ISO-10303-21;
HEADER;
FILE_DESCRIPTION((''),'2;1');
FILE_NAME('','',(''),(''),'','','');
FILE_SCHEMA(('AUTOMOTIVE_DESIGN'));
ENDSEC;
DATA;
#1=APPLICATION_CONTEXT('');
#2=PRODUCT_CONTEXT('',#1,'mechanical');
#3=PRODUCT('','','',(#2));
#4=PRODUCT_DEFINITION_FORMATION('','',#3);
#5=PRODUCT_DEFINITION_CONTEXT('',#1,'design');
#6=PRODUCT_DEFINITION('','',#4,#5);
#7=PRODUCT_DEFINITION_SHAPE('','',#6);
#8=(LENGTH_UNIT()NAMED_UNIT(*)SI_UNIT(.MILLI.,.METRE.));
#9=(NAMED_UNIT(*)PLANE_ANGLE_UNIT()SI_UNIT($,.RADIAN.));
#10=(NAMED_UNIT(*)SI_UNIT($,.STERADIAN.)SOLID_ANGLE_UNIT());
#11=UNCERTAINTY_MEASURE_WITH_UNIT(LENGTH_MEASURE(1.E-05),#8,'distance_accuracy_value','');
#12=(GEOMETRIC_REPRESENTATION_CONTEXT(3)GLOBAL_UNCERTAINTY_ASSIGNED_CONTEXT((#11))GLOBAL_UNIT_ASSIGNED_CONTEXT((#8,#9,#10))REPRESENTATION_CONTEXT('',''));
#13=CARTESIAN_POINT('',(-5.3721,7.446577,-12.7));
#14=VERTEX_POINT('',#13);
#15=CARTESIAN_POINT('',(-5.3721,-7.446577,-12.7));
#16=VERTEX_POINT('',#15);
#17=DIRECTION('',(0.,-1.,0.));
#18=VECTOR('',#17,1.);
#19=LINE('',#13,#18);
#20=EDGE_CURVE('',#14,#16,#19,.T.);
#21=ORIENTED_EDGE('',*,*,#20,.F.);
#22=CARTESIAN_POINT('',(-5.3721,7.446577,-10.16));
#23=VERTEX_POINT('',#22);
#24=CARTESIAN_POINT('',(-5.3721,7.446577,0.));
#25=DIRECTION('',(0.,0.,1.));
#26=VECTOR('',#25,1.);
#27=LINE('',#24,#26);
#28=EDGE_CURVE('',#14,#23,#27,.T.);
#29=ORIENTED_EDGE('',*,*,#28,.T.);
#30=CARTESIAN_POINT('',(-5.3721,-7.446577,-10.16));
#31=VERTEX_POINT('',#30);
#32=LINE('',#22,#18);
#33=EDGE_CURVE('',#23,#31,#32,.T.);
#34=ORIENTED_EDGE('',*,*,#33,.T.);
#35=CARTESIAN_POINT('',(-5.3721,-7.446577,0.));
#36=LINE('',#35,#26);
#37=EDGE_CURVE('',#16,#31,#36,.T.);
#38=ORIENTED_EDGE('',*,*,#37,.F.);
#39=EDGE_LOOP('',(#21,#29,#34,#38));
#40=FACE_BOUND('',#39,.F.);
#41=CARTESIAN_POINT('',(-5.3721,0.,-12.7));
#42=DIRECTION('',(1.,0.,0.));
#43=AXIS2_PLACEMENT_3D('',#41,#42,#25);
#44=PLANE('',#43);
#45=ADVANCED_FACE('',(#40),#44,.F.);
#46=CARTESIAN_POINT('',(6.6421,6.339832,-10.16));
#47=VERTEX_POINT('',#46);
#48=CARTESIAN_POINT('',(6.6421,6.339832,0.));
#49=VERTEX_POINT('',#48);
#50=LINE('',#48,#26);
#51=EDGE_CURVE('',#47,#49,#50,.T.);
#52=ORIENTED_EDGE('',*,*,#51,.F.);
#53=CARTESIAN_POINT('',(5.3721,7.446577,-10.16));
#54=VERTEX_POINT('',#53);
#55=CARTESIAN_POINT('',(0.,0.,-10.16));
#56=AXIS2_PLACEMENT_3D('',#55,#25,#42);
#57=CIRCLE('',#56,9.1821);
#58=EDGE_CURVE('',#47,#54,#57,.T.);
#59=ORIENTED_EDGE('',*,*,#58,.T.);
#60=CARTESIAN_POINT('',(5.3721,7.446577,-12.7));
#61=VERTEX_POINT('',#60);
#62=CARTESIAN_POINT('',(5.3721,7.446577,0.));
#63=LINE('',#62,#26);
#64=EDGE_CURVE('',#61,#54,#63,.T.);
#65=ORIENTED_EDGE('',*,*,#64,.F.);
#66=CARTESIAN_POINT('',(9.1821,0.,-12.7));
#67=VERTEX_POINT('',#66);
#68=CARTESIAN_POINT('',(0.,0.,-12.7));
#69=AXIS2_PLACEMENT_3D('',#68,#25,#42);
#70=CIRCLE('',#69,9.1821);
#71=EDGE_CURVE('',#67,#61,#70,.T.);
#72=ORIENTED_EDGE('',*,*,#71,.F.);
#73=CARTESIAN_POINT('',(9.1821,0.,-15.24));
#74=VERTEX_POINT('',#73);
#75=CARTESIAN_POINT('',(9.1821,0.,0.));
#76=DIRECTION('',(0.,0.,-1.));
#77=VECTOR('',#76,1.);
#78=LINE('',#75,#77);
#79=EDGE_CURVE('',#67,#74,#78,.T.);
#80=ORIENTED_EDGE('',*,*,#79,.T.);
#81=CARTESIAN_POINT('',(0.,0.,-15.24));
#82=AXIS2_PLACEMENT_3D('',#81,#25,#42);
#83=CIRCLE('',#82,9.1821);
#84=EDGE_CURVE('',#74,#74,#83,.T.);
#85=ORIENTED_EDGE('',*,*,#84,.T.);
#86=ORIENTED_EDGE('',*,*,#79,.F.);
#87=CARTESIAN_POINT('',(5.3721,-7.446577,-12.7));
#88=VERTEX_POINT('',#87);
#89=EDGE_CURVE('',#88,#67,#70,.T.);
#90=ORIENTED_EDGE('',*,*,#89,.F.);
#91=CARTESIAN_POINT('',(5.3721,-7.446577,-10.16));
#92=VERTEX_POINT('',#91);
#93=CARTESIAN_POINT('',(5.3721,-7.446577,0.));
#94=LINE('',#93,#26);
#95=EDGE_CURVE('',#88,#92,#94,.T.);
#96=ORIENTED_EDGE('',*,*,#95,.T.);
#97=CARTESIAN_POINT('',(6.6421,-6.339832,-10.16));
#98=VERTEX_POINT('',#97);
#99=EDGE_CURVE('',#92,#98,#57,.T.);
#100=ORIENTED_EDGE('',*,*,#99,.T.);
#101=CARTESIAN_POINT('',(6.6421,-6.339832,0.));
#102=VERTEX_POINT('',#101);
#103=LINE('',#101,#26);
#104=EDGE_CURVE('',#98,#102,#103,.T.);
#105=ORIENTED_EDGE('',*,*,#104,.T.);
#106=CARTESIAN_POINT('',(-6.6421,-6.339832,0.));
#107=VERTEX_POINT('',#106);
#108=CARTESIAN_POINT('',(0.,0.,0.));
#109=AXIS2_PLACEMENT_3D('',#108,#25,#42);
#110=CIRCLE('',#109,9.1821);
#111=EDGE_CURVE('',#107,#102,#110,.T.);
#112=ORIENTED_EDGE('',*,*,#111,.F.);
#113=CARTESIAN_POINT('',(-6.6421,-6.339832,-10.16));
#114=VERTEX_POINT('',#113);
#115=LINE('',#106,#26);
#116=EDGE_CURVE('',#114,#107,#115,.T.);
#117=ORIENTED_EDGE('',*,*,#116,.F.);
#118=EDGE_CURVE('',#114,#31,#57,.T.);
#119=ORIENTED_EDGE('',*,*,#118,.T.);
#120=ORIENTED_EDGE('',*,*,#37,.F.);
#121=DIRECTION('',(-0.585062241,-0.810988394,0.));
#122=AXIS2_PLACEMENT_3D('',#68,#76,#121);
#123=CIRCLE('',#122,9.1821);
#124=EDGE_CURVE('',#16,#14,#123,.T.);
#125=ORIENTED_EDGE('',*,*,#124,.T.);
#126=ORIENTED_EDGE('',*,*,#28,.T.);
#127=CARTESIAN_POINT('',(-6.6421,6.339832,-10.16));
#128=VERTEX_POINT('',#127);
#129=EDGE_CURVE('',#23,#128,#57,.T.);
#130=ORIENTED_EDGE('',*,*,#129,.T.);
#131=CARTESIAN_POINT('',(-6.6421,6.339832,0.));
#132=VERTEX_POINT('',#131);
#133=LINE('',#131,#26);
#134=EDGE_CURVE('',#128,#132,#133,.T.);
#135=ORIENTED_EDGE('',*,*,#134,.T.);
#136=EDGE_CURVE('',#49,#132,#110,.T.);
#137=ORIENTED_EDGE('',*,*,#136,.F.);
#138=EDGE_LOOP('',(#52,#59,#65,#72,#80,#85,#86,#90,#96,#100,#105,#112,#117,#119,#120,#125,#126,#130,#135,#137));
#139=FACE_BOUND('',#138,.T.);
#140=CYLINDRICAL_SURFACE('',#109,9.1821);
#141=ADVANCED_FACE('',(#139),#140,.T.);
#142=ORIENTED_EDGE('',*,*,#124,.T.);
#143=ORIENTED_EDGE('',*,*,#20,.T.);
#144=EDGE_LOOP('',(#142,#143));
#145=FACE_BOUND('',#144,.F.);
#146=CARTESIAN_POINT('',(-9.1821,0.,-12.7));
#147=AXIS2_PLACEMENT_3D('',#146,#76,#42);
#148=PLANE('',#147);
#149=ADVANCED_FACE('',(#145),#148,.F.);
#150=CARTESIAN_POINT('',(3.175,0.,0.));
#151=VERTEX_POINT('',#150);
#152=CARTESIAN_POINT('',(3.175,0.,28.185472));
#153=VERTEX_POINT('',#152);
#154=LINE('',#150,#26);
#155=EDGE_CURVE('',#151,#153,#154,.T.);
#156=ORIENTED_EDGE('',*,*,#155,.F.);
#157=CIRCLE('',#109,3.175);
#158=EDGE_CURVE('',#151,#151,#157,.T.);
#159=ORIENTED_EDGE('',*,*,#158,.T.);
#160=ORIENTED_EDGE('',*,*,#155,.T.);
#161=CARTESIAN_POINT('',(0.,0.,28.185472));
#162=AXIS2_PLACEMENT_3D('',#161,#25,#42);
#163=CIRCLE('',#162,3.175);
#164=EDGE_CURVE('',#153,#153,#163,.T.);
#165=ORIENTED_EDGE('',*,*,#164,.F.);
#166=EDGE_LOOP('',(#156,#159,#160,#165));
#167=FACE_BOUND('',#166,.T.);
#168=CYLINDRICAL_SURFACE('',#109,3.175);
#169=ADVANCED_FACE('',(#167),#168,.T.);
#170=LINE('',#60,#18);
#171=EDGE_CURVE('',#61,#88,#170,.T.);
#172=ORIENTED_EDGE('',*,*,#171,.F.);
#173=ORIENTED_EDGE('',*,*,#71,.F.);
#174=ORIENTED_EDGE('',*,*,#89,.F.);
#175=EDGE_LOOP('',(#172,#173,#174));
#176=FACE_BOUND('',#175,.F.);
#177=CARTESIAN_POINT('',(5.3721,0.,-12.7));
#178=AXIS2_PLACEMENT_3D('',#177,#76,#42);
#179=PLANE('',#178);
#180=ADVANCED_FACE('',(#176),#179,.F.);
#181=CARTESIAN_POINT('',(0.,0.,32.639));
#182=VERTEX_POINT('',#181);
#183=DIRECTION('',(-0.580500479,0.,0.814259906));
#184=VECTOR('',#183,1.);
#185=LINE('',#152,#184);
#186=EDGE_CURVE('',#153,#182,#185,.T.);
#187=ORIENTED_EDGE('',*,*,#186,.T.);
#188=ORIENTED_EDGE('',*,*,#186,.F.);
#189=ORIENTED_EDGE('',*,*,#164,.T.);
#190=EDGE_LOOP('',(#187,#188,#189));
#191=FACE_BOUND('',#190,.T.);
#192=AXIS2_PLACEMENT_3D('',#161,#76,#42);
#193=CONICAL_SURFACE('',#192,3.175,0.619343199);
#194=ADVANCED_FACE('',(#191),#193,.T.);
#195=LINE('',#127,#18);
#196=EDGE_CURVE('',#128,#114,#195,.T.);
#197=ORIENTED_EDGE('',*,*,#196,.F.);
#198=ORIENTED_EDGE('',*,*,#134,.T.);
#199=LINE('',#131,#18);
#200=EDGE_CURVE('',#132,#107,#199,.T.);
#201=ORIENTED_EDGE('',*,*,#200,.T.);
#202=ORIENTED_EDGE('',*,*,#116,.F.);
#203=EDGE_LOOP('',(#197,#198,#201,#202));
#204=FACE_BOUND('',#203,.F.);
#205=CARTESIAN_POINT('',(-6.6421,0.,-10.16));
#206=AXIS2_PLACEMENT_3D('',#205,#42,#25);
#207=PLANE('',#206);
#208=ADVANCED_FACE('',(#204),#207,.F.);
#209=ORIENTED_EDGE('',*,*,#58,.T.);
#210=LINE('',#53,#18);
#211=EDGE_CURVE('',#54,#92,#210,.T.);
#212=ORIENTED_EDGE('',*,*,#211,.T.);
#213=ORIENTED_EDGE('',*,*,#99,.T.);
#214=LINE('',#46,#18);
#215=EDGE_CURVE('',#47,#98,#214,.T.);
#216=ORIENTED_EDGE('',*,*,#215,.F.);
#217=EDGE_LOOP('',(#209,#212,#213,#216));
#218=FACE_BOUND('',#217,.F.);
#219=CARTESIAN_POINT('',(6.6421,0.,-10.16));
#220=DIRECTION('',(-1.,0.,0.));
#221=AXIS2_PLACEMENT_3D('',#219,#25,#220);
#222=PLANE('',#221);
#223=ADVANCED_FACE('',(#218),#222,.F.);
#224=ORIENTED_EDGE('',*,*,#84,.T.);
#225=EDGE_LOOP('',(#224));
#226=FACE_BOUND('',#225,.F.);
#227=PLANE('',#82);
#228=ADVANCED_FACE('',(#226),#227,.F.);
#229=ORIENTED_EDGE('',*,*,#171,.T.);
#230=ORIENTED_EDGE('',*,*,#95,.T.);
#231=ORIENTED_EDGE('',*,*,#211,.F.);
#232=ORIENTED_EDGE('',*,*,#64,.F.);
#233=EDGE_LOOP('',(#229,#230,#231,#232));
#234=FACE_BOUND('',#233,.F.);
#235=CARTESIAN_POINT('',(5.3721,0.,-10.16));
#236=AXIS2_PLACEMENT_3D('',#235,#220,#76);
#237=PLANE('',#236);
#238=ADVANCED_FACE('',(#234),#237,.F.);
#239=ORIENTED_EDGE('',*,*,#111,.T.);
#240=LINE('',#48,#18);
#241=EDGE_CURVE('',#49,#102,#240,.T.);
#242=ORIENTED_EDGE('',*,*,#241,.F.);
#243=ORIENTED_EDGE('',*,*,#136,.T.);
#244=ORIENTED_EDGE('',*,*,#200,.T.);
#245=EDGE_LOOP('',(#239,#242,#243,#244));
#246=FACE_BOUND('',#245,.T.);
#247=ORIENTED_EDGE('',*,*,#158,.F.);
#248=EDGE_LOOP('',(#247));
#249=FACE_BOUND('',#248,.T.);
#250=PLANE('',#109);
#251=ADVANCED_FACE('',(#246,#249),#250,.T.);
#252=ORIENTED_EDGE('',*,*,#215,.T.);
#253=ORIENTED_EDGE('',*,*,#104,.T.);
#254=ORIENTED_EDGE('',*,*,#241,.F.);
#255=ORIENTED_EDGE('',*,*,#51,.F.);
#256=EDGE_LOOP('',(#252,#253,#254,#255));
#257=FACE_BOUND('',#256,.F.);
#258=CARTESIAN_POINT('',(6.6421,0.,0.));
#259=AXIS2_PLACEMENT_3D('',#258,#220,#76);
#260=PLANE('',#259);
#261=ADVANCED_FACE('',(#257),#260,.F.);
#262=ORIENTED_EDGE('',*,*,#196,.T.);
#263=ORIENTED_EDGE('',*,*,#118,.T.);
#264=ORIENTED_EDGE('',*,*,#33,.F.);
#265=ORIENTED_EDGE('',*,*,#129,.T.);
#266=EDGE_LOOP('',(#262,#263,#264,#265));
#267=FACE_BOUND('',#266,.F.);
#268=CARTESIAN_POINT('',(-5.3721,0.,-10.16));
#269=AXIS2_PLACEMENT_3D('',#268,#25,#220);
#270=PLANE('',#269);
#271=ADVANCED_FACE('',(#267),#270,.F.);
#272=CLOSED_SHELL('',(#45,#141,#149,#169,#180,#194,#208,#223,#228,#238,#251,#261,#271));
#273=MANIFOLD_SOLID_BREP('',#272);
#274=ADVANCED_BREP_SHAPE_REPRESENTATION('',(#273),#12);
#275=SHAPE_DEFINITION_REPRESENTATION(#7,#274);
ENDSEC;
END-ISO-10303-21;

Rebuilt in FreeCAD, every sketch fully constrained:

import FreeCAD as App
import Part
import Sketcher

V = App.Vector
Q = App.Units.Quantity


def add_polygon(sketch, points):
    """Adds a closed chain of lines whose ends are joined by coincident constraints."""
    first, n = sketch.GeometryCount, len(points)
    for a, b in zip(points, points[1:] + points[:1]):
        sketch.addGeometry(Part.LineSegment(App.Vector(*a, 0), App.Vector(*b, 0)), False)
    for i in range(n):
        sketch.addConstraint(Sketcher.Constraint("Coincident", first + i, 2, first + (i + 1) % n, 1))

doc = App.newDocument("Part")
body = doc.addObject("PartDesign::Body", "Body")

# Sketch on XY plane
sketch1 = body.newObject("Sketcher::SketchObject", "Sketch")
sketch1.AttachmentSupport = (doc.getObject("XY_Plane"), [""])
sketch1.MapMode = "FlatFace"
sketch1.addGeometry(Part.Circle(V(0, 0, 0), V(0, 0, 1), 9), False)
sketch1.addConstraint(Sketcher.Constraint("Coincident", 0, 3, -1, 1))
sketch1.addConstraint(Sketcher.Constraint("Diameter", 0, Q("0.723 in")))
pad1 = body.newObject("PartDesign::Pad", "Pad")
pad1.Profile = sketch1
pad1.Length = Q("0.6 in")
pad1.Reversed = True

# Sketch on XZ plane
sketch2 = body.newObject("Sketcher::SketchObject", "Sketch001")
sketch2.AttachmentSupport = (doc.getObject("XZ_Plane"), [""])
sketch2.MapMode = "FlatFace"
add_polygon(sketch2, [(-9.2, 0), (-9.2, -12.7), (-5.4, -12.7), (-5.4, -10.2), (-6.6, -10.2), (-6.6, 0)])  # lines 0-5
add_polygon(sketch2, [(9.2, -12.7), (9.2, 0), (6.6, 0), (6.6, -10.2), (5.4, -10.2), (5.4, -12.7)])  # lines 6-11
sketch2.addConstraint(Sketcher.Constraint("Vertical", 0))
sketch2.addConstraint(Sketcher.Constraint("Horizontal", 1))
sketch2.addConstraint(Sketcher.Constraint("Vertical", 2))
sketch2.addConstraint(Sketcher.Constraint("Horizontal", 3))
sketch2.addConstraint(Sketcher.Constraint("Vertical", 4))
sketch2.addConstraint(Sketcher.Constraint("Horizontal", 5))
sketch2.addConstraint(Sketcher.Constraint("Vertical", 6))
sketch2.addConstraint(Sketcher.Constraint("Horizontal", 7))
sketch2.addConstraint(Sketcher.Constraint("Vertical", 8))
sketch2.addConstraint(Sketcher.Constraint("Horizontal", 9))
sketch2.addConstraint(Sketcher.Constraint("Vertical", 10))
sketch2.addConstraint(Sketcher.Constraint("Horizontal", 11))
sketch2.addConstraint(Sketcher.Constraint("Symmetric", 5, 2, 6, 2, -1, 1))
sketch2.addConstraint(Sketcher.Constraint("Symmetric", 4, 2, 7, 2, -2))
sketch2.addConstraint(Sketcher.Constraint("Symmetric", 2, 2, 9, 2, -2))
sketch2.addConstraint(Sketcher.Constraint("Horizontal", 1, 2, 10, 2))
sketch2.addConstraint(Sketcher.Constraint("Equal", 7, 2))
sketch2.addConstraint(Sketcher.Constraint("DistanceX", 5, 2, 5, 1, Q("0.1 in")))
sketch2.addConstraint(Sketcher.Constraint("DistanceY", 0, 2, 0, 1, Q("0.5 in")))
sketch2.addConstraint(Sketcher.Constraint("DistanceX", 1, 1, 1, 2, Q("0.15 in")))
sketch2.addConstraint(Sketcher.Constraint("DistanceX", 4, 2, 6, 2, Q("0.623 in")))
pocket1 = body.newObject("PartDesign::Pocket", "Pocket")
pocket1.Profile = sketch2
pocket1.Type = "ThroughAll"
pocket1.Midplane = True

# Sketch on XZ plane
sketch3 = body.newObject("Sketcher::SketchObject", "Sketch002")
sketch3.AttachmentSupport = (doc.getObject("XZ_Plane"), [""])
sketch3.MapMode = "FlatFace"
add_polygon(sketch3, [(0, 32.6), (0, 0), (3.2, 0), (3.2, 28.2)])  # lines 0-3
sketch3.addConstraint(Sketcher.Constraint("Vertical", 0))
sketch3.addConstraint(Sketcher.Constraint("Horizontal", 1))
sketch3.addConstraint(Sketcher.Constraint("Vertical", 2))
sketch3.addConstraint(Sketcher.Constraint("Coincident", 0, 2, -1, 1))
sketch3.addConstraint(Sketcher.Constraint("DistanceX", 1, 1, 1, 2, Q("0.125 in")))
sketch3.addConstraint(Sketcher.Constraint("DistanceY", 0, 2, 0, 1, Q("1.285 in")))
sketch3.addConstraint(Sketcher.Constraint("DistanceY", 2, 1, 2, 2, Q("28.185472 mm")))
revolution = body.newObject("PartDesign::Revolution", "Revolution")
revolution.Profile = sketch3
revolution.ReferenceAxis = (sketch3, ["V_Axis"])
revolution.Angle = 360

doc.recompute()
